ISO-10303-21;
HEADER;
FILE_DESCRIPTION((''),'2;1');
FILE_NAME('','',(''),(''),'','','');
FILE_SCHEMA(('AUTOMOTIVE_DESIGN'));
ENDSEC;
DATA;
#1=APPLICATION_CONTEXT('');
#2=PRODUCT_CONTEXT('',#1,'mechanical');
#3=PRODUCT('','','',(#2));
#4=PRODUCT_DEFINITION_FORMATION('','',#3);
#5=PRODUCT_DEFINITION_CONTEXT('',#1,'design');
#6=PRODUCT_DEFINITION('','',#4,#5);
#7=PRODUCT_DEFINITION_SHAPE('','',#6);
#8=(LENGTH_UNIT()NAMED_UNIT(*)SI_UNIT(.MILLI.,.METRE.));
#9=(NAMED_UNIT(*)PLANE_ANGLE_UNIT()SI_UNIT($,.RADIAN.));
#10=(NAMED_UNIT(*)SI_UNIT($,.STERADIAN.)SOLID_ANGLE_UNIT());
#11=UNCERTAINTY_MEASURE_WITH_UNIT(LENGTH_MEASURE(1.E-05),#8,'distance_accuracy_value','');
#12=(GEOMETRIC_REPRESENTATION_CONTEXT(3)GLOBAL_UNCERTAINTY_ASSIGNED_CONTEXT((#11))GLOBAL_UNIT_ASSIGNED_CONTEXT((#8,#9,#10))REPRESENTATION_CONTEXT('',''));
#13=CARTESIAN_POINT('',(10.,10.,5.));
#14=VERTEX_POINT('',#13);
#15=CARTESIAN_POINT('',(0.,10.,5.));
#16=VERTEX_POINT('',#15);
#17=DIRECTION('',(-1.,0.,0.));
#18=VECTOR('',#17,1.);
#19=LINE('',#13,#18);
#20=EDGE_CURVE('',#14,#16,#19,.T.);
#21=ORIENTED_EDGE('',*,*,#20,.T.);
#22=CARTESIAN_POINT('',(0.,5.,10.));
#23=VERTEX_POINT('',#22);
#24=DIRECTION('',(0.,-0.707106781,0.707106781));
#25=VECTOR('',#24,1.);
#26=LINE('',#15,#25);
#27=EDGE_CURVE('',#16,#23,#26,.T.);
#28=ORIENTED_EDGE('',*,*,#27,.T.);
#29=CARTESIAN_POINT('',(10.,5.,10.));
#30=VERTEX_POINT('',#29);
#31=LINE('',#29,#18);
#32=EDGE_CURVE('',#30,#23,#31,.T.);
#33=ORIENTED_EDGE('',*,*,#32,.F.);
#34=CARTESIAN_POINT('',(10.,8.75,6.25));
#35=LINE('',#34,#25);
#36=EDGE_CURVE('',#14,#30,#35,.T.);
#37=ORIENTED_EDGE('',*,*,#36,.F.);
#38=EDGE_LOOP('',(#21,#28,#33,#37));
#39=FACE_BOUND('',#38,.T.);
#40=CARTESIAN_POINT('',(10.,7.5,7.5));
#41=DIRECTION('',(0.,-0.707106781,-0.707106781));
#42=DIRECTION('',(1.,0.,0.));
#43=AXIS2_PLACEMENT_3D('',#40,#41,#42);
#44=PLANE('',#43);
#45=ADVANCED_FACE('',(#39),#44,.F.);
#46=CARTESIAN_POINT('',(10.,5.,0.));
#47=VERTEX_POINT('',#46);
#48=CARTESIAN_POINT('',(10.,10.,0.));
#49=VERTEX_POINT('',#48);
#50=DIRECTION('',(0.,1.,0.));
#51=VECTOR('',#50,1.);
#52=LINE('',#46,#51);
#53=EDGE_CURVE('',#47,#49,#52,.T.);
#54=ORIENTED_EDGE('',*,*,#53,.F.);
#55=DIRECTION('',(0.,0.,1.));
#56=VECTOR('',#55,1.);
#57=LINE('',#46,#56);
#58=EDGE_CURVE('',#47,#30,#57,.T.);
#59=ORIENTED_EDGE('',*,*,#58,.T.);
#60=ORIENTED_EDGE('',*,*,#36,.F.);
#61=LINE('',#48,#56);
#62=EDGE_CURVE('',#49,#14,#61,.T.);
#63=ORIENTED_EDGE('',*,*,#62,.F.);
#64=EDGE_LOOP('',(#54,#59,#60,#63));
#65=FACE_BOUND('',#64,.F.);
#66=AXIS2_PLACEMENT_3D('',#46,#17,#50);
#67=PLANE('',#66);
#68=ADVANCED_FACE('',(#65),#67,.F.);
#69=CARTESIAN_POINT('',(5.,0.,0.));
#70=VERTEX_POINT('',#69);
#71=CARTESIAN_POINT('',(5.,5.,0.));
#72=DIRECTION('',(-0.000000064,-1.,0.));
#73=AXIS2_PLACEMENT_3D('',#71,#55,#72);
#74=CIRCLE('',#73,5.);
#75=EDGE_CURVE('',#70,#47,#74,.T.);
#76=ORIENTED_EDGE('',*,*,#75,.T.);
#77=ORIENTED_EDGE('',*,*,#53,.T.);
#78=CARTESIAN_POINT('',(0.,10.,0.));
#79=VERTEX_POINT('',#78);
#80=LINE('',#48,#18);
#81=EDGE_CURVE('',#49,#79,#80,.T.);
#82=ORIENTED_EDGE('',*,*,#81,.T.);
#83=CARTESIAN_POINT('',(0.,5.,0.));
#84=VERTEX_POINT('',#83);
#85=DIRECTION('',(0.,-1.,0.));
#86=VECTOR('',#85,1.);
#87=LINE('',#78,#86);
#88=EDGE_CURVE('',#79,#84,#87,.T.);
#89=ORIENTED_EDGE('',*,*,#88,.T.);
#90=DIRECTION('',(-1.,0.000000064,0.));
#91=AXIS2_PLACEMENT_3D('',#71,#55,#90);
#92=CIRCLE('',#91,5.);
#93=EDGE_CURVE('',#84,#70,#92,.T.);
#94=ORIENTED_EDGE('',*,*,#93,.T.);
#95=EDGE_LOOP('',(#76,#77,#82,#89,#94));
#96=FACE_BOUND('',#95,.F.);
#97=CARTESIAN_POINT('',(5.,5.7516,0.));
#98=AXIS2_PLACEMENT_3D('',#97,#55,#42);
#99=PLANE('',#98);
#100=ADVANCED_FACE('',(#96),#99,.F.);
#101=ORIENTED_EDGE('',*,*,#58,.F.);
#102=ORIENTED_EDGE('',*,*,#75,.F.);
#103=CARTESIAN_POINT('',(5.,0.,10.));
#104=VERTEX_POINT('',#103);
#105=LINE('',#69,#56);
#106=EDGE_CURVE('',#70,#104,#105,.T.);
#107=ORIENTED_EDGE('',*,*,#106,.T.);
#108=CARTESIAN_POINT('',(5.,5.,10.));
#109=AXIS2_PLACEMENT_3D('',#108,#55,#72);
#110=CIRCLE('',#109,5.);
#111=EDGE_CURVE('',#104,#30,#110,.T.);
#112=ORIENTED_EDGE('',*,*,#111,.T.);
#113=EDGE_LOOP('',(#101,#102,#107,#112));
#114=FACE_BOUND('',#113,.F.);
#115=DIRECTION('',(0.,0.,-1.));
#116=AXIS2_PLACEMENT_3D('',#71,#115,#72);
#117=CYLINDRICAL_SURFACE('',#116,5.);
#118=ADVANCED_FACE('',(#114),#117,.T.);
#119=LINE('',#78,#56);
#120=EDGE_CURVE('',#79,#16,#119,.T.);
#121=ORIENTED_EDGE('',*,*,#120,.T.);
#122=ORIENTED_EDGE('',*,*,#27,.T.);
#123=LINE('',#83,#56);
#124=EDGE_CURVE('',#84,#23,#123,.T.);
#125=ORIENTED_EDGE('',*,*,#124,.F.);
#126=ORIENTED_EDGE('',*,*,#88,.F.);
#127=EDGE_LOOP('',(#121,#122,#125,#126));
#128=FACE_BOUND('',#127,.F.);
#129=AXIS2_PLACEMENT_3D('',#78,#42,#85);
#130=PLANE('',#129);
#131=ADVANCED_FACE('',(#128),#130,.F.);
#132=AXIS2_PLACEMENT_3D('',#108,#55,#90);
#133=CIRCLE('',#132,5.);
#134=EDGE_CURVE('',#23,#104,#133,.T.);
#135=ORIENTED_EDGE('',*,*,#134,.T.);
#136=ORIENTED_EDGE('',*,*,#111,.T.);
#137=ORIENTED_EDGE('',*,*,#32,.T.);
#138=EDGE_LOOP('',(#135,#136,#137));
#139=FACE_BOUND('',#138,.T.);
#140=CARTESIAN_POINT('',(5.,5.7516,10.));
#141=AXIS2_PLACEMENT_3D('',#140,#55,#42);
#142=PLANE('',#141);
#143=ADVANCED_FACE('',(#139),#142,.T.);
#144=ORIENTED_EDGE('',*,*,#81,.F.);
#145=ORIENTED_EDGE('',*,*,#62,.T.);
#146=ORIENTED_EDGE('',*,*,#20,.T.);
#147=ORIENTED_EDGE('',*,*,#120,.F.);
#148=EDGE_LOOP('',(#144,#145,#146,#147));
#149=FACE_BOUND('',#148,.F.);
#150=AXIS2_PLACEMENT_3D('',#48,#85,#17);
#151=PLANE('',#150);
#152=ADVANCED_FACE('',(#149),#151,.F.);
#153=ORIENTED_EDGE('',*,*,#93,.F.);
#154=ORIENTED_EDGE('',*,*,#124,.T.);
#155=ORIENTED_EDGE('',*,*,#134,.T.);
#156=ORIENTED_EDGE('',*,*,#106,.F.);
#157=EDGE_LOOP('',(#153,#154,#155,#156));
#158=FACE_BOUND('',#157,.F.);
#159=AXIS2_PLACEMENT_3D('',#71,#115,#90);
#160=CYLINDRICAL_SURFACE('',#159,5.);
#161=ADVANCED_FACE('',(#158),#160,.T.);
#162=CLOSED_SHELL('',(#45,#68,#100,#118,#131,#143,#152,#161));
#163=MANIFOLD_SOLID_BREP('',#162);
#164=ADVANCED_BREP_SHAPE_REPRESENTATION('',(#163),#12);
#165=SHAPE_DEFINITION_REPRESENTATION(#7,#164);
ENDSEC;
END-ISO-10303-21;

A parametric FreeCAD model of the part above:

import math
import FreeCAD as App
import Part
import Sketcher
from FreeCAD import Vector


def edges_at(feature, points):
    """Names of the edges that pass closest to the given points."""
    edges = feature.Shape.Edges
    near = lambda p: min(range(len(edges)), key=lambda i: edges[i].distToShape(Part.Vertex(*p))[0])
    return sorted({f"Edge{near(p) + 1}" for p in points})

doc = App.newDocument("Part")
body = doc.addObject("PartDesign::Body", "Body")

# Sketch on XY plane
sketch1 = body.newObject("Sketcher::SketchObject", "Sketch")
sketch1.AttachmentSupport = (doc.getObject("XY_Plane"), [""])
sketch1.MapMode = "FlatFace"
sketch1.addGeometry([
    Part.LineSegment(Vector(10, 10, 0), Vector(0, 10, 0)),  # 0
    Part.LineSegment(Vector(0, 10, 0), Vector(0, 5, 0)),  # 1
    Part.ArcOfCircle(Part.Circle(Vector(5, 5, 0), Vector(0, 0, 1), 5), math.radians(180), math.radians(270)),  # 2
    Part.ArcOfCircle(Part.Circle(Vector(5, 5, 0), Vector(0, 0, 1), 5), math.radians(-90), math.radians(0)),  # 3
    Part.LineSegment(Vector(10, 5, 0), Vector(10, 10, 0)),  # 4
], False)
sketch1.addConstraint([
    Sketcher.Constraint("Coincident", 0, 2, 1, 1),
    Sketcher.Constraint("Tangent", 1, 2, 2, 1),
    Sketcher.Constraint("Tangent", 2, 2, 3, 1),
    Sketcher.Constraint("Tangent", 3, 2, 4, 1),
    Sketcher.Constraint("Coincident", 4, 2, 0, 1),
    Sketcher.Constraint("Horizontal", 0),
    Sketcher.Constraint("Vertical", 1),
    Sketcher.Constraint("Vertical", 4),
    Sketcher.Constraint("Equal", 2, 3),
    Sketcher.Constraint("PointOnObject", 0, 2, -2),
    Sketcher.Constraint("PointOnObject", 2, 2, -1),
    Sketcher.Constraint("Vertical", 3, 3, 2, 2),
    Sketcher.Constraint("Radius", 2, 5.0),
    Sketcher.Constraint("DistanceY", 1, 2, 1, 1, 5.0),
])
pad1 = body.newObject("PartDesign::Pad", "Pad")
pad1.Profile = sketch1
pad1.Length = 10
doc.recompute()

chamfer = body.newObject("PartDesign::Chamfer", "Chamfer")
chamfer.Base = (pad1, edges_at(pad1, [(5, 10, 10)]))
chamfer.Size = 5

doc.recompute()
